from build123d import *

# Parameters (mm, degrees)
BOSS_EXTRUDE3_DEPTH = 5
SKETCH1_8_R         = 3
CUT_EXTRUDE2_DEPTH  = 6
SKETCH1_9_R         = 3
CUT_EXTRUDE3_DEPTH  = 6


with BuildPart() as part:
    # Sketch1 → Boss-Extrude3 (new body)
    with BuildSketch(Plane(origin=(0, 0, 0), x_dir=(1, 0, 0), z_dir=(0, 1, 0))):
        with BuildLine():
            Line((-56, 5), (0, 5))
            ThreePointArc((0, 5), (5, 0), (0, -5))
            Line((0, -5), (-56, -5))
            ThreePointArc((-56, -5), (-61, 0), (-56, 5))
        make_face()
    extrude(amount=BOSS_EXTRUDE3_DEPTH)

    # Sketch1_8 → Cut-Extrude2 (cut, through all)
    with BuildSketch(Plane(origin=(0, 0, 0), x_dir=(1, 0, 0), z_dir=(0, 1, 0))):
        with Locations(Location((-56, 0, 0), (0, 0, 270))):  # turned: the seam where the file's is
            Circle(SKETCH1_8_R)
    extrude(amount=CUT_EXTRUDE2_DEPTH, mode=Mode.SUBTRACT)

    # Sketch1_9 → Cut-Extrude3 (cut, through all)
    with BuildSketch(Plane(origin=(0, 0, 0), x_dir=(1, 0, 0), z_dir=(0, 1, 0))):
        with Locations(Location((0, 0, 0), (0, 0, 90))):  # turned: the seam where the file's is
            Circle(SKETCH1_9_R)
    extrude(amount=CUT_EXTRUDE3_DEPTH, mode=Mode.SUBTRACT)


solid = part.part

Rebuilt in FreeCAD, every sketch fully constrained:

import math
import FreeCAD as App
import Part
import Sketcher

V = App.Vector

doc = App.newDocument("Part")
body = doc.addObject("PartDesign::Body", "Body")

sketch1 = body.newObject("Sketcher::SketchObject", "Sketch")
sketch1.AttachmentSupport = (doc.getObject("XZ_Plane"), [""])
sketch1.MapMode = "FlatFace"
sketch1.addGeometry([
    Part.LineSegment(V(0, -5, 0), V(-56, -5, 0)),
    Part.ArcOfCircle(Part.Circle(V(-56, 0, 0), V(0, 0, 1), 5), math.radians(90), math.radians(270)),
    Part.LineSegment(V(-56, 5, 0), V(0, 5, 0)),
    Part.ArcOfCircle(Part.Circle(V(0, 0, 0), V(0, 0, 1), 5), math.radians(-90), math.radians(90)),
], False)
sketch1.addConstraint([
    Sketcher.Constraint("Tangent", 0, 2, 1, 2),
    Sketcher.Constraint("Tangent", 1, 1, 2, 1),
    Sketcher.Constraint("Tangent", 2, 2, 3, 2),
    Sketcher.Constraint("Tangent", 3, 1, 0, 1),
    Sketcher.Constraint("Horizontal", 0),
    Sketcher.Constraint("Horizontal", 2),
    Sketcher.Constraint("Coincident", 3, 3, -1, 1),
    Sketcher.Constraint("Radius", 1, 5.0),
    Sketcher.Constraint("DistanceX", 0, 2, 0, 1, 56.0),
])
pad1 = body.newObject("PartDesign::Pad", "Pad")
pad1.Profile = sketch1
pad1.Length = 5
pad1.Reversed = True

sketch2 = body.newObject("Sketcher::SketchObject", "Sketch001")
sketch2.AttachmentSupport = (doc.getObject("XZ_Plane"), [""])
sketch2.MapMode = "FlatFace"
sketch2.addGeometry(Part.Circle(V(-56, 0, 0), V(0, 0, 1), 3), False)
sketch2.addConstraint([
    Sketcher.Constraint("PointOnObject", 0, 3, -1),
    Sketcher.Constraint("Diameter", 0, 6.0),
    Sketcher.Constraint("DistanceX", 0, 3, -1, 1, 56.0),
])
pocket1 = body.newObject("PartDesign::Pocket", "Pocket")
pocket1.Profile = sketch2
pocket1.Type = "ThroughAll"

sketch3 = body.newObject("Sketcher::SketchObject", "Sketch002")
sketch3.AttachmentSupport = (doc.getObject("XZ_Plane"), [""])
sketch3.MapMode = "FlatFace"
sketch3.addGeometry(Part.Circle(V(0, 0, 0), V(0, 0, 1), 3), False)
sketch3.addConstraint([
    Sketcher.Constraint("Coincident", 0, 3, -1, 1),
    Sketcher.Constraint("Diameter", 0, 6.0),
])
pocket2 = body.newObject("PartDesign::Pocket", "Pocket001")
pocket2.Profile = sketch3
pocket2.Type = "ThroughAll"

doc.recompute()
